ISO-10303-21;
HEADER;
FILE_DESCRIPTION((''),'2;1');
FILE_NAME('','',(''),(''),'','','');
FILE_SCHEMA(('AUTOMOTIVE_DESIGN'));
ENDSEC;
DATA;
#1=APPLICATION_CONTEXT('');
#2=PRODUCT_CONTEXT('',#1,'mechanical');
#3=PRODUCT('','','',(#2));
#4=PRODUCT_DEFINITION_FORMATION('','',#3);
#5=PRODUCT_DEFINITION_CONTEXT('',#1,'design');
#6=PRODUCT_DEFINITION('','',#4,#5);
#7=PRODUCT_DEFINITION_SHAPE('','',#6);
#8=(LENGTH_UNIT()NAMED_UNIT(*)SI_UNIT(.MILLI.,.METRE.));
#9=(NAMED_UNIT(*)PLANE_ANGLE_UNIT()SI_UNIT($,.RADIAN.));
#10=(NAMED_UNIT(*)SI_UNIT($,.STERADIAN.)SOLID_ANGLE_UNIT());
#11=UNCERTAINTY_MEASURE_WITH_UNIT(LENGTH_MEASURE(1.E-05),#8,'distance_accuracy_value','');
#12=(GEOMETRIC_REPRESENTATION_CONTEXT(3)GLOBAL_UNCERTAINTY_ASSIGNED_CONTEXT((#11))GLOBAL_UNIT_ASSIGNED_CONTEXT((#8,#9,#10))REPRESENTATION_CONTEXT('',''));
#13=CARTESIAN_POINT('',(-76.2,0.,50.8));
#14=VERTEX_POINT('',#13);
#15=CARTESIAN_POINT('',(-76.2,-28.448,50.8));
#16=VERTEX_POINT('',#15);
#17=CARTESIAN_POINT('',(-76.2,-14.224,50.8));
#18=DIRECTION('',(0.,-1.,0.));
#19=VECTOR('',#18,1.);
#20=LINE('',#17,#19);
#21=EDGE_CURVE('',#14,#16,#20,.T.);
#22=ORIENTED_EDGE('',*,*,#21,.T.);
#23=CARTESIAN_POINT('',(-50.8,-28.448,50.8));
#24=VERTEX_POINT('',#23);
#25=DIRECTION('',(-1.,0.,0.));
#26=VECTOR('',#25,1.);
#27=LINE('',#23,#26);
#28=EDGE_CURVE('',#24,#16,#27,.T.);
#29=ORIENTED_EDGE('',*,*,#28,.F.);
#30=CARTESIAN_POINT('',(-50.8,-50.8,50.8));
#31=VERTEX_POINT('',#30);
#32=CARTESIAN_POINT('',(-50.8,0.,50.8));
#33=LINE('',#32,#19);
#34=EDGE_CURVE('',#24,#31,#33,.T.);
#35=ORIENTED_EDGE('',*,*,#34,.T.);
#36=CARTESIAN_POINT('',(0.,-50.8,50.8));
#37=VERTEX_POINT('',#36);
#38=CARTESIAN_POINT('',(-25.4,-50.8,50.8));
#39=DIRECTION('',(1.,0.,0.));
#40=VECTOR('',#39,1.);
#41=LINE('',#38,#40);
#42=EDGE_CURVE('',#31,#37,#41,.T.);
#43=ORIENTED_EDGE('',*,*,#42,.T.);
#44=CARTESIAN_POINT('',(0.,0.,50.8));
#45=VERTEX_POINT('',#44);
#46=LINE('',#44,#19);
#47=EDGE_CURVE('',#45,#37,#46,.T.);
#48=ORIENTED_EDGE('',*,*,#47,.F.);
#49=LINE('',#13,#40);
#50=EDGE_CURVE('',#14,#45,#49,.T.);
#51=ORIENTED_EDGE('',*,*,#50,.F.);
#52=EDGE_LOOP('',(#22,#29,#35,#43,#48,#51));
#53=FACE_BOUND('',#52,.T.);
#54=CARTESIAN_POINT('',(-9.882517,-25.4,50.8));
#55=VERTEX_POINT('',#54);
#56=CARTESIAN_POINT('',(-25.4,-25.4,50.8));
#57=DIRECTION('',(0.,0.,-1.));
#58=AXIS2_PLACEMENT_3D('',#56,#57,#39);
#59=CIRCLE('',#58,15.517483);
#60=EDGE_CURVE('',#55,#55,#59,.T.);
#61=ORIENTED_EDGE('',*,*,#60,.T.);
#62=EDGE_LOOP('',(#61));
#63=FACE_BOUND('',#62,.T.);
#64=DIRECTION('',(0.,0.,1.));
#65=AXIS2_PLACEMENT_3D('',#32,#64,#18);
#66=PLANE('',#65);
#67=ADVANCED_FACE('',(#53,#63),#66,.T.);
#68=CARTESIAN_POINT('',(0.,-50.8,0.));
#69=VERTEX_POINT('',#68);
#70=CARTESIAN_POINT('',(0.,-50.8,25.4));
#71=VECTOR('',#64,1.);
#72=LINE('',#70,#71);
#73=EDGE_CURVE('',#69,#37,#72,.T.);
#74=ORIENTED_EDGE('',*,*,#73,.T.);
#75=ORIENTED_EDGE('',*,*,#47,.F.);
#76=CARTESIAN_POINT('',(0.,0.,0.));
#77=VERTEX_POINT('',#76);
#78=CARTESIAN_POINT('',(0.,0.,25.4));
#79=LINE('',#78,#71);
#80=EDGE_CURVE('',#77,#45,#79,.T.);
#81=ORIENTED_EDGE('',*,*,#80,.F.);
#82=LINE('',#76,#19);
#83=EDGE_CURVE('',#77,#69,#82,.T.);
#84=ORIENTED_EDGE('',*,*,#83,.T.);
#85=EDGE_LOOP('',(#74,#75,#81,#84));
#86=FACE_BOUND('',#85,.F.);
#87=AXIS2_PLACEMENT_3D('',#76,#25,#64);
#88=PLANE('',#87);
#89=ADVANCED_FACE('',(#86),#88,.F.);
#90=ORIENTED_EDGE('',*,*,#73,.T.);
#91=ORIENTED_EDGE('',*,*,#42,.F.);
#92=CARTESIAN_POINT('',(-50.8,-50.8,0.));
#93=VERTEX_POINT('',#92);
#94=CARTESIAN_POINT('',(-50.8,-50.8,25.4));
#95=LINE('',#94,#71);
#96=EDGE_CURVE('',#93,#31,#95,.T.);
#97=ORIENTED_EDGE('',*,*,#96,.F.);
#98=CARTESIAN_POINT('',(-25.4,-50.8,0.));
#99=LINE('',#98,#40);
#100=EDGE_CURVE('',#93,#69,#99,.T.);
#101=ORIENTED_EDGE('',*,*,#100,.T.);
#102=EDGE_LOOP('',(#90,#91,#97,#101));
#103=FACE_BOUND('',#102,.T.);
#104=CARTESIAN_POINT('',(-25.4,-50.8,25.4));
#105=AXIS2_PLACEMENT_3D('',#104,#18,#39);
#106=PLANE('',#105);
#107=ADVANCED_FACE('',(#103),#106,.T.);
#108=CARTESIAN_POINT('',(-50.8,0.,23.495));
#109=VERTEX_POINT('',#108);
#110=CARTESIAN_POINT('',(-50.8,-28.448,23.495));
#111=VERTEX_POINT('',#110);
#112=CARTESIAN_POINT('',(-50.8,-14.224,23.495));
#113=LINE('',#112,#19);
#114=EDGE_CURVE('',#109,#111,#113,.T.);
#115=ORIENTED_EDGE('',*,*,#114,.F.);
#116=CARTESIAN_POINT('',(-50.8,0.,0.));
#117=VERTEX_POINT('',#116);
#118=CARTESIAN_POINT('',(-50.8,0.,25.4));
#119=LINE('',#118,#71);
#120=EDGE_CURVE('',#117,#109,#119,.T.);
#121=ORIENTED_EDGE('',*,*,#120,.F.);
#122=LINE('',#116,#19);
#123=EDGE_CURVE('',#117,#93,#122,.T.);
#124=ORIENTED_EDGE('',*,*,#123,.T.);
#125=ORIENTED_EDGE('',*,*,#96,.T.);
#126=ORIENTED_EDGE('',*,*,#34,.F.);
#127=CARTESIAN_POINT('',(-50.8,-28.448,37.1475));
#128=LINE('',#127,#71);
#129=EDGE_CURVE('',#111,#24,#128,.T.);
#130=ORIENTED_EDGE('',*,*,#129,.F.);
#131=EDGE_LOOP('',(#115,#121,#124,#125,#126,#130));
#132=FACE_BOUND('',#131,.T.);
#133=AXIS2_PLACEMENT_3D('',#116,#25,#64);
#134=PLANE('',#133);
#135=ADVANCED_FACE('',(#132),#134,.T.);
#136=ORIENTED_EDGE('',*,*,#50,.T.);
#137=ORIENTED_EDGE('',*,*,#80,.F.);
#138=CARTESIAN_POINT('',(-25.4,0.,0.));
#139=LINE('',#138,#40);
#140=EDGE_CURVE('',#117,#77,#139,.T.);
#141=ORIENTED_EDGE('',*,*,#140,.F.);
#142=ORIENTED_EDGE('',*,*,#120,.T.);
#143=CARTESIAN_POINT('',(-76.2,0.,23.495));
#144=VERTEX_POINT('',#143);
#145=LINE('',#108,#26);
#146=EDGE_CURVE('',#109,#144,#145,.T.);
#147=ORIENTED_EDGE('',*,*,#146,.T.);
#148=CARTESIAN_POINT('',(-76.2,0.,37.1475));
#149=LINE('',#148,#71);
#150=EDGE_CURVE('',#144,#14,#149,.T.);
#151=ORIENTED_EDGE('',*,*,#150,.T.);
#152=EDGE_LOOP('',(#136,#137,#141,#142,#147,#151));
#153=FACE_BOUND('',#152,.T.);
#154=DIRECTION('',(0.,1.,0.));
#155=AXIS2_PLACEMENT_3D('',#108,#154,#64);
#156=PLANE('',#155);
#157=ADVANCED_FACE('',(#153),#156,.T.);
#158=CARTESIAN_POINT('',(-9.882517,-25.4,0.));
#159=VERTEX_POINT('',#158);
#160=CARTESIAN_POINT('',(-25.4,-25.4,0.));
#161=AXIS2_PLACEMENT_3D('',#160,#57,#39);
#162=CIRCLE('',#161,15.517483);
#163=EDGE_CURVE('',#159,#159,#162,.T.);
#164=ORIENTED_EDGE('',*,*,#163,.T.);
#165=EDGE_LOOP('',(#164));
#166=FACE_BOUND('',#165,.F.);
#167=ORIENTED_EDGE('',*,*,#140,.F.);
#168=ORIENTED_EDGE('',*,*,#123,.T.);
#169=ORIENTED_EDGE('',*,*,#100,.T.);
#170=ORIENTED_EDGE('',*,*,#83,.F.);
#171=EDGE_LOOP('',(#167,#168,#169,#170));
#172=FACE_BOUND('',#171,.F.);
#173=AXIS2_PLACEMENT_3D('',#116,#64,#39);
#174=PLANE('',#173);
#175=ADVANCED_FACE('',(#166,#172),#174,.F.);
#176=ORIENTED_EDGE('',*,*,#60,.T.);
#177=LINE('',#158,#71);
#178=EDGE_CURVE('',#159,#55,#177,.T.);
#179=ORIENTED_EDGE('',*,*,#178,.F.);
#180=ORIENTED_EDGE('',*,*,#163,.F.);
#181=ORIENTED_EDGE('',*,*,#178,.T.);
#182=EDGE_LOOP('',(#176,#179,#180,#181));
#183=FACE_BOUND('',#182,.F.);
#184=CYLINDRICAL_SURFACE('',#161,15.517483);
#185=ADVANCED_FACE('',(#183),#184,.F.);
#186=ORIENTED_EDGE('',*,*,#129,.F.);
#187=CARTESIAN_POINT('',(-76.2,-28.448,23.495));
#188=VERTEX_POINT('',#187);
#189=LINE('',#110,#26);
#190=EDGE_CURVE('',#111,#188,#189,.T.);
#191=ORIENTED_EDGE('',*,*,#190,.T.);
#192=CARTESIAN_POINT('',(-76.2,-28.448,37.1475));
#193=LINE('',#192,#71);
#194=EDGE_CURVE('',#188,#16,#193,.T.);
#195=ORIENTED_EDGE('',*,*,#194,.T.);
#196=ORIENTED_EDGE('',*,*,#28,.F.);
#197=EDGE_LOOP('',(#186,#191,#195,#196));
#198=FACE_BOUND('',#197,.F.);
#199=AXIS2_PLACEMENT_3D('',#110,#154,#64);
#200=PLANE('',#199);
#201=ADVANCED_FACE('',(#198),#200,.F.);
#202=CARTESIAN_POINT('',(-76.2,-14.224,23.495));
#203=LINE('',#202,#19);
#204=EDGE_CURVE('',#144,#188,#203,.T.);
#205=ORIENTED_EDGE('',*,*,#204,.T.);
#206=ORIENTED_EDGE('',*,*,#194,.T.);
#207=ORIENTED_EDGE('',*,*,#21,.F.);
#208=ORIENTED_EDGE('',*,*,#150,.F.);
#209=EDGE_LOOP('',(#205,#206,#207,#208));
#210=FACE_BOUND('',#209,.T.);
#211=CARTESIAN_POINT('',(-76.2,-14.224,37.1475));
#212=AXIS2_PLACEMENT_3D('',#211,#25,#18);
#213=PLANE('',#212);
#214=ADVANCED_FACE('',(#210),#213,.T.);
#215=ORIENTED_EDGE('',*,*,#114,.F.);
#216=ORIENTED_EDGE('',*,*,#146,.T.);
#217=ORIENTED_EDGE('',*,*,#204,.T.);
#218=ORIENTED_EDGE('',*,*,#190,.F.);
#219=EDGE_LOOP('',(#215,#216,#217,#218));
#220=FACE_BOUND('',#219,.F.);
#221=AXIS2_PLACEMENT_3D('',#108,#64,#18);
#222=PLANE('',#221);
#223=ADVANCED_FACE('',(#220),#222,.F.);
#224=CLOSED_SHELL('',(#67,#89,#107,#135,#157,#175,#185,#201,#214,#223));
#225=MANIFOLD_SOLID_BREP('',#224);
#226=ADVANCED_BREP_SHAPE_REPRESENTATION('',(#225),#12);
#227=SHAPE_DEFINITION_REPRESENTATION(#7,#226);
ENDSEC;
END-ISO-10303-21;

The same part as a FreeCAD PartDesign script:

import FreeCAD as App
import Part
import Sketcher
Q = App.Units.Quantity

doc = App.newDocument("Part")
body = doc.addObject("PartDesign::Body", "Body")

# Sketch on XZ plane
sketch1 = body.newObject("Sketcher::SketchObject", "Sketch")
sketch1.AttachmentSupport = (doc.getObject("XZ_Plane"), [""])
sketch1.MapMode = "FlatFace"
sketch1.addGeometry(Part.LineSegment(App.Vector(-50.8, 50.8, 0), App.Vector(-50.8, 0, 0)), False)
sketch1.addGeometry(Part.LineSegment(App.Vector(-50.8, 0, 0), App.Vector(0, 0, 0)), False)
sketch1.addGeometry(Part.LineSegment(App.Vector(0, 0, 0), App.Vector(0, 50.8, 0)), False)
sketch1.addGeometry(Part.LineSegment(App.Vector(0, 50.8, 0), App.Vector(-50.8, 50.8, 0)), False)
sketch1.addConstraint(Sketcher.Constraint("Coincident", 0, 2, 1, 1))
sketch1.addConstraint(Sketcher.Constraint("Coincident", 1, 2, 2, 1))
sketch1.addConstraint(Sketcher.Constraint("Coincident", 2, 2, 3, 1))
sketch1.addConstraint(Sketcher.Constraint("Coincident", 3, 2, 0, 1))
sketch1.addConstraint(Sketcher.Constraint("Vertical", 0))
sketch1.addConstraint(Sketcher.Constraint("Horizontal", 1))
sketch1.addConstraint(Sketcher.Constraint("Vertical", 2))
sketch1.addConstraint(Sketcher.Constraint("Horizontal", 3))
sketch1.addConstraint(Sketcher.Constraint("Coincident", 1, 2, -1, 1))
sketch1.addConstraint(Sketcher.Constraint("Equal", 3, 0))
sketch1.addConstraint(Sketcher.Constraint("DistanceX", 1, 1, 1, 2, Q("2 in")))
pad1 = body.newObject("PartDesign::Pad", "Pad")
pad1.Profile = sketch1
pad1.Length = Q("2 in")

# Sketch on YZ plane
sketch2 = body.newObject("Sketcher::SketchObject", "Sketch001")
sketch2.AttachmentSupport = (doc.getObject("YZ_Plane"), [""])
sketch2.MapMode = "FlatFace"
sketch2.AttachmentOffset = App.Placement(App.Vector(0, 0, -2 * 25.4), App.Rotation())
sketch2.addGeometry(Part.LineSegment(App.Vector(0, 50.8, 0), App.Vector(0, 23.495, 0)), False)
sketch2.addGeometry(Part.LineSegment(App.Vector(0, 23.495, 0), App.Vector(-28.448, 23.495, 0)), False)
sketch2.addGeometry(Part.LineSegment(App.Vector(-28.448, 23.495, 0), App.Vector(-28.448, 50.8, 0)), False)
sketch2.addGeometry(Part.LineSegment(App.Vector(-28.448, 50.8, 0), App.Vector(0, 50.8, 0)), False)
sketch2.addConstraint(Sketcher.Constraint("Coincident", 0, 2, 1, 1))
sketch2.addConstraint(Sketcher.Constraint("Coincident", 1, 2, 2, 1))
sketch2.addConstraint(Sketcher.Constraint("Coincident", 2, 2, 3, 1))
sketch2.addConstraint(Sketcher.Constraint("Coincident", 3, 2, 0, 1))
sketch2.addConstraint(Sketcher.Constraint("Vertical", 0))
sketch2.addConstraint(Sketcher.Constraint("Horizontal", 1))
sketch2.addConstraint(Sketcher.Constraint("Vertical", 2))
sketch2.addConstraint(Sketcher.Constraint("Horizontal", 3))
sketch2.addConstraint(Sketcher.Constraint("PointOnObject", 0, 2, -2))
sketch2.addConstraint(Sketcher.Constraint("DistanceY", -1, 1, 2, 2, Q("2 in")))
sketch2.addConstraint(Sketcher.Constraint("DistanceX", 1, 2, 1, 1, Q("1.12 in")))
sketch2.addConstraint(Sketcher.Constraint("DistanceY", 0, 2, 0, 1, Q("1.075 in")))
pad2 = body.newObject("PartDesign::Pad", "Pad001")
pad2.Profile = sketch2
pad2.Length = Q("1 in")
pad2.Reversed = True

# Sketch on XY plane
sketch3 = body.newObject("Sketcher::SketchObject", "Sketch002")
sketch3.AttachmentSupport = (doc.getObject("XY_Plane"), [""])
sketch3.MapMode = "FlatFace"
sketch3.addGeometry(Part.Circle(App.Vector(-25.4, -25.4, 0), App.Vector(0, 0, 1), 15.517483), False)
sketch3.addConstraint(Sketcher.Constraint("DistanceX", 0, 3, -1, 1, Q("1 in")))
sketch3.addConstraint(Sketcher.Constraint("DistanceY", 0, 3, -1, 1, Q("1 in")))
sketch3.addConstraint(Sketcher.Constraint("Diameter", 0, 31.034966))
pocket1 = body.newObject("PartDesign::Pocket", "Pocket")
pocket1.Profile = sketch3
pocket1.Length = Q("2 in")
pocket1.Reversed = True

doc.recompute()
